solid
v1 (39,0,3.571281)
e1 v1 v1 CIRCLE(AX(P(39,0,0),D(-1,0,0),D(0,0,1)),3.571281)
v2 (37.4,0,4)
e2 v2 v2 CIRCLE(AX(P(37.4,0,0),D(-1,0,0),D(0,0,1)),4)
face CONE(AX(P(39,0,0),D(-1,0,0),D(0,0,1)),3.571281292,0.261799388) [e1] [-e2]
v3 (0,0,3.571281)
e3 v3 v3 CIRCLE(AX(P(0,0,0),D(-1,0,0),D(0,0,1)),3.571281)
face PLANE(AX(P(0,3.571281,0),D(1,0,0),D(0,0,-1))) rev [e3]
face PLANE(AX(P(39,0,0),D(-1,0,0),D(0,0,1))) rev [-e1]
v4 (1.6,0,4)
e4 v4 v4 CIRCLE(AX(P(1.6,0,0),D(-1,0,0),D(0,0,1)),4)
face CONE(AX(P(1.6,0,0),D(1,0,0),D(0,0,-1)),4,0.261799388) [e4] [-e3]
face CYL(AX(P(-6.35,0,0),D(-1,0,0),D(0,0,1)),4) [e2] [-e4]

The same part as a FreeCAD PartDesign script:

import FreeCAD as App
import Part
import Sketcher
Q = App.Units.Quantity

doc = App.newDocument("Part")
body = doc.addObject("PartDesign::Body", "Body")

sketch1 = body.newObject("Sketcher::SketchObject", "Sketch")
sketch1.AttachmentSupport = (doc.getObject("XY_Plane"), [""])
sketch1.MapMode = "FlatFace"
sketch1.addGeometry(Part.LineSegment(App.Vector(0, 0, 0), App.Vector(39, 0, 0)), False)
sketch1.addGeometry(Part.LineSegment(App.Vector(39, 0, 0), App.Vector(39, 3.6, 0)), False)
sketch1.addGeometry(Part.LineSegment(App.Vector(39, 3.6, 0), App.Vector(37.4, 4, 0)), False)
sketch1.addGeometry(Part.LineSegment(App.Vector(37.4, 4, 0), App.Vector(1.6, 4, 0)), False)
sketch1.addGeometry(Part.LineSegment(App.Vector(1.6, 4, 0), App.Vector(0, 3.6, 0)), False)
sketch1.addGeometry(Part.LineSegment(App.Vector(0, 3.6, 0), App.Vector(0, 0, 0)), False)
sketch1.addConstraint(Sketcher.Constraint("Coincident", 0, 2, 1, 1))
sketch1.addConstraint(Sketcher.Constraint("Coincident", 1, 2, 2, 1))
sketch1.addConstraint(Sketcher.Constraint("Coincident", 2, 2, 3, 1))
sketch1.addConstraint(Sketcher.Constraint("Coincident", 3, 2, 4, 1))
sketch1.addConstraint(Sketcher.Constraint("Coincident", 4, 2, 5, 1))
sketch1.addConstraint(Sketcher.Constraint("Coincident", 5, 2, 0, 1))
sketch1.addConstraint(Sketcher.Constraint("Horizontal", 0))
sketch1.addConstraint(Sketcher.Constraint("Vertical", 1))
sketch1.addConstraint(Sketcher.Constraint("Horizontal", 3))
sketch1.addConstraint(Sketcher.Constraint("Vertical", 5))
sketch1.addConstraint(Sketcher.Constraint("Coincident", 5, 2, -1, 1))
sketch1.addConstraint(Sketcher.Constraint("Horizontal", 1, 2, 4, 2))
sketch1.addConstraint(Sketcher.Constraint("Equal", 2, 4))
sketch1.addConstraint(Sketcher.Constraint("DistanceX", 0, 1, 0, 2, 39.0))
sketch1.addConstraint(Sketcher.Constraint("Angle", 2, Q("165 deg")))
sketch1.addConstraint(Sketcher.Constraint("DistanceX", 3, 2, 3, 1, 35.8))
sketch1.addConstraint(Sketcher.Constraint("DistanceY", -1, 1, 2, 2, 4.0))
revolution = body.newObject("PartDesign::Revolution", "Revolution")
revolution.Profile = sketch1
revolution.ReferenceAxis = (sketch1, ["H_Axis"])
revolution.Angle = 360

doc.recompute()
